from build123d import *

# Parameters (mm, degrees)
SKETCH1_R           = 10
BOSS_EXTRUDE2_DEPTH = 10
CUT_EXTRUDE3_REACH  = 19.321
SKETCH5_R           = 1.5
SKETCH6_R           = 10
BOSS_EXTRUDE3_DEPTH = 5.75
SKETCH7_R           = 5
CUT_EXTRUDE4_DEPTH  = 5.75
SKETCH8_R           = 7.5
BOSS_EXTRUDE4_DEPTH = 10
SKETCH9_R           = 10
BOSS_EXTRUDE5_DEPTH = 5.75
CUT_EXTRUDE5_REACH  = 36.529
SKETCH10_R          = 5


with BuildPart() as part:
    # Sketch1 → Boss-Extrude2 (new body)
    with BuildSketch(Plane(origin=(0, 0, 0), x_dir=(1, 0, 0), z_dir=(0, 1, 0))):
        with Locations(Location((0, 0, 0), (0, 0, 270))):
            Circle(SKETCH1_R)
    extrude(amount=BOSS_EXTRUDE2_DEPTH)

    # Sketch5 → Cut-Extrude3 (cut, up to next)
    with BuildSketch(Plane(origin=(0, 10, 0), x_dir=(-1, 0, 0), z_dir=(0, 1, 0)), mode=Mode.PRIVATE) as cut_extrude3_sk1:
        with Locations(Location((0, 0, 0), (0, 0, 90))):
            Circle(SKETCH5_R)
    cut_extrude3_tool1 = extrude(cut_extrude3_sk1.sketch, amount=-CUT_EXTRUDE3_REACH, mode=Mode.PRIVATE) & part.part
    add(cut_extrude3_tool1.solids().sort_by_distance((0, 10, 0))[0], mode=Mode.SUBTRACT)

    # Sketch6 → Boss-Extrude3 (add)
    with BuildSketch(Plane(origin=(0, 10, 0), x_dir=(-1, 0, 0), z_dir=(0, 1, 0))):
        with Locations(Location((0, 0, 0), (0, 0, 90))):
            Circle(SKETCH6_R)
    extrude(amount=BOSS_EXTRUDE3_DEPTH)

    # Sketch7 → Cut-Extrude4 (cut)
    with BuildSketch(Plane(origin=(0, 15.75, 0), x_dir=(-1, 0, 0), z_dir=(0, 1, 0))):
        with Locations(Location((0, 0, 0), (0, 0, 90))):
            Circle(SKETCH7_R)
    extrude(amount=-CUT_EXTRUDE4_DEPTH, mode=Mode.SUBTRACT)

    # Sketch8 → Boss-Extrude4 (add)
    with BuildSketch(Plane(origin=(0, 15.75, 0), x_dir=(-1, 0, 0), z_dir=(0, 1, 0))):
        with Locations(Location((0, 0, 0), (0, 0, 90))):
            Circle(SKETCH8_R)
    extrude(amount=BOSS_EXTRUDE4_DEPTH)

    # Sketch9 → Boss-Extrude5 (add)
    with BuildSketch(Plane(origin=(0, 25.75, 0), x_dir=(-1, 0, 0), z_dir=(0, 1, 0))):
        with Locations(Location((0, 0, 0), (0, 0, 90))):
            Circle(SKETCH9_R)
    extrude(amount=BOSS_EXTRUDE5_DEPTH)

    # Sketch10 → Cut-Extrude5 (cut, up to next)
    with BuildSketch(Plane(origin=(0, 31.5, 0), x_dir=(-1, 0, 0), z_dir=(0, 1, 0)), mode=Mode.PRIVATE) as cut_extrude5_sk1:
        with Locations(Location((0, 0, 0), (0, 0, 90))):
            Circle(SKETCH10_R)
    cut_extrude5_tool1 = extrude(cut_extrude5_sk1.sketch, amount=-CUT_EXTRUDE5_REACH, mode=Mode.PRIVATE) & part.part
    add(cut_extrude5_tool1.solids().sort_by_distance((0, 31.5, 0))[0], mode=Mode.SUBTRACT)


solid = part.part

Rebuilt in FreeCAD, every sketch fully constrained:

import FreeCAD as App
import Part
import Sketcher

V = App.Vector

doc = App.newDocument("Part")
params = doc.addObject("Spreadsheet::Sheet", "Params")
for row, (alias, value) in enumerate([
    ("sketch1_diameter", "20 mm"),
    ("pad1_length", "10 mm"),
    ("sketch2_diameter", "3 mm"),
    ("sketch3_diameter", "20 mm"),
    ("pad2_length", "5.75 mm"),
    ("sketch4_diameter", "10 mm"),
    ("pocket2_length", "5.75 mm"),
    ("sketch5_diameter", "15 mm"),
    ("pad3_length", "10 mm"),
    ("sketch6_diameter", "20 mm"),
    ("pad4_length", "5.75 mm"),
    ("sketch7_diameter", "10 mm"),
], start=1):
    params.set(f"A{row}", alias)
    params.set(f"B{row}", "=" + value)
    params.setAlias(f"B{row}", alias)

body = doc.addObject("PartDesign::Body", "Body")

# Sketch on XZ plane
sketch1 = doc.addObject("Sketcher::SketchObject", "Sketch")
body.addObject(sketch1)
sketch1.AttachmentSupport = (doc.XZ_Plane, [""])
sketch1.MapMode = "FlatFace"
sketch1.addGeometry(Part.Circle(V(0, 0, 0), V(0, 0, 1), 10), False)
sketch1.addConstraint([
    Sketcher.Constraint("Coincident", 0, 3, -1, 1),
    Sketcher.Constraint("Diameter", 0, 20.0),
])
sketch1.setExpression("Constraints[1]", "Params.sketch1_diameter")
pad1 = doc.addObject("PartDesign::Pad", "Pad")
body.addObject(pad1)
pad1.Profile = sketch1
pad1.setExpression("Length", "Params.pad1_length")
pad1.Reversed = True

# Sketch on XZ plane
sketch2 = doc.addObject("Sketcher::SketchObject", "Sketch001")
body.addObject(sketch2)
sketch2.AttachmentSupport = (doc.XZ_Plane, [""])
sketch2.MapMode = "FlatFace"
sketch2.AttachmentOffset = App.Placement(V(0, 0, -10), App.Rotation())
sketch2.addGeometry(Part.Circle(V(0, 0, 0), V(0, 0, 1), 1.5), False)
sketch2.addConstraint([
    Sketcher.Constraint("Coincident", 0, 3, -1, 1),
    Sketcher.Constraint("Diameter", 0, 3.0),
])
sketch2.setExpression("Constraints[1]", "Params.sketch2_diameter")
pocket1 = doc.addObject("PartDesign::Pocket", "Pocket")
body.addObject(pocket1)
pocket1.Profile = sketch2
pocket1.Type = "UpToFirst"
pocket1.Reversed = True

# Sketch on XZ plane
sketch3 = doc.addObject("Sketcher::SketchObject", "Sketch002")
body.addObject(sketch3)
sketch3.AttachmentSupport = (doc.XZ_Plane, [""])
sketch3.MapMode = "FlatFace"
sketch3.AttachmentOffset = App.Placement(V(0, 0, -10), App.Rotation())
sketch3.addGeometry(Part.Circle(V(0, 0, 0), V(0, 0, 1), 10), False)
sketch3.addConstraint([
    Sketcher.Constraint("Coincident", 0, 3, -1, 1),
    Sketcher.Constraint("Diameter", 0, 20.0),
])
sketch3.setExpression("Constraints[1]", "Params.sketch3_diameter")
pad2 = doc.addObject("PartDesign::Pad", "Pad001")
body.addObject(pad2)
pad2.Profile = sketch3
pad2.setExpression("Length", "Params.pad2_length")
pad2.Reversed = True

# Sketch on XZ plane
sketch4 = doc.addObject("Sketcher::SketchObject", "Sketch003")
body.addObject(sketch4)
sketch4.AttachmentSupport = (doc.XZ_Plane, [""])
sketch4.MapMode = "FlatFace"
sketch4.AttachmentOffset = App.Placement(V(0, 0, -15.75), App.Rotation())
sketch4.addGeometry(Part.Circle(V(0, 0, 0), V(0, 0, 1), 5), False)
sketch4.addConstraint([
    Sketcher.Constraint("Coincident", 0, 3, -1, 1),
    Sketcher.Constraint("Diameter", 0, 10.0),
])
sketch4.setExpression("Constraints[1]", "Params.sketch4_diameter")
pocket2 = doc.addObject("PartDesign::Pocket", "Pocket001")
body.addObject(pocket2)
pocket2.Profile = sketch4
pocket2.setExpression("Length", "Params.pocket2_length")
pocket2.Reversed = True

# Sketch on XZ plane
sketch5 = doc.addObject("Sketcher::SketchObject", "Sketch004")
body.addObject(sketch5)
sketch5.AttachmentSupport = (doc.XZ_Plane, [""])
sketch5.MapMode = "FlatFace"
sketch5.AttachmentOffset = App.Placement(V(0, 0, -15.75), App.Rotation())
sketch5.addGeometry(Part.Circle(V(0, 0, 0), V(0, 0, 1), 8), False)
sketch5.addConstraint([
    Sketcher.Constraint("Coincident", 0, 3, -1, 1),
    Sketcher.Constraint("Diameter", 0, 15.0),
])
sketch5.setExpression("Constraints[1]", "Params.sketch5_diameter")
pad3 = doc.addObject("PartDesign::Pad", "Pad002")
body.addObject(pad3)
pad3.Profile = sketch5
pad3.setExpression("Length", "Params.pad3_length")
pad3.Reversed = True

# Sketch on XZ plane
sketch6 = doc.addObject("Sketcher::SketchObject", "Sketch005")
body.addObject(sketch6)
sketch6.AttachmentSupport = (doc.XZ_Plane, [""])
sketch6.MapMode = "FlatFace"
sketch6.AttachmentOffset = App.Placement(V(0, 0, -25.75), App.Rotation())
sketch6.addGeometry(Part.Circle(V(0, 0, 0), V(0, 0, 1), 10), False)
sketch6.addConstraint([
    Sketcher.Constraint("Coincident", 0, 3, -1, 1),
    Sketcher.Constraint("Diameter", 0, 20.0),
])
sketch6.setExpression("Constraints[1]", "Params.sketch6_diameter")
pad4 = doc.addObject("PartDesign::Pad", "Pad003")
body.addObject(pad4)
pad4.Profile = sketch6
pad4.setExpression("Length", "Params.pad4_length")
pad4.Reversed = True

# Sketch on XZ plane
sketch7 = doc.addObject("Sketcher::SketchObject", "Sketch006")
body.addObject(sketch7)
sketch7.AttachmentSupport = (doc.XZ_Plane, [""])
sketch7.MapMode = "FlatFace"
sketch7.AttachmentOffset = App.Placement(V(0, 0, -31.5), App.Rotation())
sketch7.addGeometry(Part.Circle(V(0, 0, 0), V(0, 0, 1), 5), False)
sketch7.addConstraint([
    Sketcher.Constraint("Coincident", 0, 3, -1, 1),
    Sketcher.Constraint("Diameter", 0, 10.0),
])
sketch7.setExpression("Constraints[1]", "Params.sketch7_diameter")
pocket3 = doc.addObject("PartDesign::Pocket", "Pocket002")
body.addObject(pocket3)
pocket3.Profile = sketch7
pocket3.Type = "UpToFirst"
pocket3.Reversed = True

doc.recompute()
